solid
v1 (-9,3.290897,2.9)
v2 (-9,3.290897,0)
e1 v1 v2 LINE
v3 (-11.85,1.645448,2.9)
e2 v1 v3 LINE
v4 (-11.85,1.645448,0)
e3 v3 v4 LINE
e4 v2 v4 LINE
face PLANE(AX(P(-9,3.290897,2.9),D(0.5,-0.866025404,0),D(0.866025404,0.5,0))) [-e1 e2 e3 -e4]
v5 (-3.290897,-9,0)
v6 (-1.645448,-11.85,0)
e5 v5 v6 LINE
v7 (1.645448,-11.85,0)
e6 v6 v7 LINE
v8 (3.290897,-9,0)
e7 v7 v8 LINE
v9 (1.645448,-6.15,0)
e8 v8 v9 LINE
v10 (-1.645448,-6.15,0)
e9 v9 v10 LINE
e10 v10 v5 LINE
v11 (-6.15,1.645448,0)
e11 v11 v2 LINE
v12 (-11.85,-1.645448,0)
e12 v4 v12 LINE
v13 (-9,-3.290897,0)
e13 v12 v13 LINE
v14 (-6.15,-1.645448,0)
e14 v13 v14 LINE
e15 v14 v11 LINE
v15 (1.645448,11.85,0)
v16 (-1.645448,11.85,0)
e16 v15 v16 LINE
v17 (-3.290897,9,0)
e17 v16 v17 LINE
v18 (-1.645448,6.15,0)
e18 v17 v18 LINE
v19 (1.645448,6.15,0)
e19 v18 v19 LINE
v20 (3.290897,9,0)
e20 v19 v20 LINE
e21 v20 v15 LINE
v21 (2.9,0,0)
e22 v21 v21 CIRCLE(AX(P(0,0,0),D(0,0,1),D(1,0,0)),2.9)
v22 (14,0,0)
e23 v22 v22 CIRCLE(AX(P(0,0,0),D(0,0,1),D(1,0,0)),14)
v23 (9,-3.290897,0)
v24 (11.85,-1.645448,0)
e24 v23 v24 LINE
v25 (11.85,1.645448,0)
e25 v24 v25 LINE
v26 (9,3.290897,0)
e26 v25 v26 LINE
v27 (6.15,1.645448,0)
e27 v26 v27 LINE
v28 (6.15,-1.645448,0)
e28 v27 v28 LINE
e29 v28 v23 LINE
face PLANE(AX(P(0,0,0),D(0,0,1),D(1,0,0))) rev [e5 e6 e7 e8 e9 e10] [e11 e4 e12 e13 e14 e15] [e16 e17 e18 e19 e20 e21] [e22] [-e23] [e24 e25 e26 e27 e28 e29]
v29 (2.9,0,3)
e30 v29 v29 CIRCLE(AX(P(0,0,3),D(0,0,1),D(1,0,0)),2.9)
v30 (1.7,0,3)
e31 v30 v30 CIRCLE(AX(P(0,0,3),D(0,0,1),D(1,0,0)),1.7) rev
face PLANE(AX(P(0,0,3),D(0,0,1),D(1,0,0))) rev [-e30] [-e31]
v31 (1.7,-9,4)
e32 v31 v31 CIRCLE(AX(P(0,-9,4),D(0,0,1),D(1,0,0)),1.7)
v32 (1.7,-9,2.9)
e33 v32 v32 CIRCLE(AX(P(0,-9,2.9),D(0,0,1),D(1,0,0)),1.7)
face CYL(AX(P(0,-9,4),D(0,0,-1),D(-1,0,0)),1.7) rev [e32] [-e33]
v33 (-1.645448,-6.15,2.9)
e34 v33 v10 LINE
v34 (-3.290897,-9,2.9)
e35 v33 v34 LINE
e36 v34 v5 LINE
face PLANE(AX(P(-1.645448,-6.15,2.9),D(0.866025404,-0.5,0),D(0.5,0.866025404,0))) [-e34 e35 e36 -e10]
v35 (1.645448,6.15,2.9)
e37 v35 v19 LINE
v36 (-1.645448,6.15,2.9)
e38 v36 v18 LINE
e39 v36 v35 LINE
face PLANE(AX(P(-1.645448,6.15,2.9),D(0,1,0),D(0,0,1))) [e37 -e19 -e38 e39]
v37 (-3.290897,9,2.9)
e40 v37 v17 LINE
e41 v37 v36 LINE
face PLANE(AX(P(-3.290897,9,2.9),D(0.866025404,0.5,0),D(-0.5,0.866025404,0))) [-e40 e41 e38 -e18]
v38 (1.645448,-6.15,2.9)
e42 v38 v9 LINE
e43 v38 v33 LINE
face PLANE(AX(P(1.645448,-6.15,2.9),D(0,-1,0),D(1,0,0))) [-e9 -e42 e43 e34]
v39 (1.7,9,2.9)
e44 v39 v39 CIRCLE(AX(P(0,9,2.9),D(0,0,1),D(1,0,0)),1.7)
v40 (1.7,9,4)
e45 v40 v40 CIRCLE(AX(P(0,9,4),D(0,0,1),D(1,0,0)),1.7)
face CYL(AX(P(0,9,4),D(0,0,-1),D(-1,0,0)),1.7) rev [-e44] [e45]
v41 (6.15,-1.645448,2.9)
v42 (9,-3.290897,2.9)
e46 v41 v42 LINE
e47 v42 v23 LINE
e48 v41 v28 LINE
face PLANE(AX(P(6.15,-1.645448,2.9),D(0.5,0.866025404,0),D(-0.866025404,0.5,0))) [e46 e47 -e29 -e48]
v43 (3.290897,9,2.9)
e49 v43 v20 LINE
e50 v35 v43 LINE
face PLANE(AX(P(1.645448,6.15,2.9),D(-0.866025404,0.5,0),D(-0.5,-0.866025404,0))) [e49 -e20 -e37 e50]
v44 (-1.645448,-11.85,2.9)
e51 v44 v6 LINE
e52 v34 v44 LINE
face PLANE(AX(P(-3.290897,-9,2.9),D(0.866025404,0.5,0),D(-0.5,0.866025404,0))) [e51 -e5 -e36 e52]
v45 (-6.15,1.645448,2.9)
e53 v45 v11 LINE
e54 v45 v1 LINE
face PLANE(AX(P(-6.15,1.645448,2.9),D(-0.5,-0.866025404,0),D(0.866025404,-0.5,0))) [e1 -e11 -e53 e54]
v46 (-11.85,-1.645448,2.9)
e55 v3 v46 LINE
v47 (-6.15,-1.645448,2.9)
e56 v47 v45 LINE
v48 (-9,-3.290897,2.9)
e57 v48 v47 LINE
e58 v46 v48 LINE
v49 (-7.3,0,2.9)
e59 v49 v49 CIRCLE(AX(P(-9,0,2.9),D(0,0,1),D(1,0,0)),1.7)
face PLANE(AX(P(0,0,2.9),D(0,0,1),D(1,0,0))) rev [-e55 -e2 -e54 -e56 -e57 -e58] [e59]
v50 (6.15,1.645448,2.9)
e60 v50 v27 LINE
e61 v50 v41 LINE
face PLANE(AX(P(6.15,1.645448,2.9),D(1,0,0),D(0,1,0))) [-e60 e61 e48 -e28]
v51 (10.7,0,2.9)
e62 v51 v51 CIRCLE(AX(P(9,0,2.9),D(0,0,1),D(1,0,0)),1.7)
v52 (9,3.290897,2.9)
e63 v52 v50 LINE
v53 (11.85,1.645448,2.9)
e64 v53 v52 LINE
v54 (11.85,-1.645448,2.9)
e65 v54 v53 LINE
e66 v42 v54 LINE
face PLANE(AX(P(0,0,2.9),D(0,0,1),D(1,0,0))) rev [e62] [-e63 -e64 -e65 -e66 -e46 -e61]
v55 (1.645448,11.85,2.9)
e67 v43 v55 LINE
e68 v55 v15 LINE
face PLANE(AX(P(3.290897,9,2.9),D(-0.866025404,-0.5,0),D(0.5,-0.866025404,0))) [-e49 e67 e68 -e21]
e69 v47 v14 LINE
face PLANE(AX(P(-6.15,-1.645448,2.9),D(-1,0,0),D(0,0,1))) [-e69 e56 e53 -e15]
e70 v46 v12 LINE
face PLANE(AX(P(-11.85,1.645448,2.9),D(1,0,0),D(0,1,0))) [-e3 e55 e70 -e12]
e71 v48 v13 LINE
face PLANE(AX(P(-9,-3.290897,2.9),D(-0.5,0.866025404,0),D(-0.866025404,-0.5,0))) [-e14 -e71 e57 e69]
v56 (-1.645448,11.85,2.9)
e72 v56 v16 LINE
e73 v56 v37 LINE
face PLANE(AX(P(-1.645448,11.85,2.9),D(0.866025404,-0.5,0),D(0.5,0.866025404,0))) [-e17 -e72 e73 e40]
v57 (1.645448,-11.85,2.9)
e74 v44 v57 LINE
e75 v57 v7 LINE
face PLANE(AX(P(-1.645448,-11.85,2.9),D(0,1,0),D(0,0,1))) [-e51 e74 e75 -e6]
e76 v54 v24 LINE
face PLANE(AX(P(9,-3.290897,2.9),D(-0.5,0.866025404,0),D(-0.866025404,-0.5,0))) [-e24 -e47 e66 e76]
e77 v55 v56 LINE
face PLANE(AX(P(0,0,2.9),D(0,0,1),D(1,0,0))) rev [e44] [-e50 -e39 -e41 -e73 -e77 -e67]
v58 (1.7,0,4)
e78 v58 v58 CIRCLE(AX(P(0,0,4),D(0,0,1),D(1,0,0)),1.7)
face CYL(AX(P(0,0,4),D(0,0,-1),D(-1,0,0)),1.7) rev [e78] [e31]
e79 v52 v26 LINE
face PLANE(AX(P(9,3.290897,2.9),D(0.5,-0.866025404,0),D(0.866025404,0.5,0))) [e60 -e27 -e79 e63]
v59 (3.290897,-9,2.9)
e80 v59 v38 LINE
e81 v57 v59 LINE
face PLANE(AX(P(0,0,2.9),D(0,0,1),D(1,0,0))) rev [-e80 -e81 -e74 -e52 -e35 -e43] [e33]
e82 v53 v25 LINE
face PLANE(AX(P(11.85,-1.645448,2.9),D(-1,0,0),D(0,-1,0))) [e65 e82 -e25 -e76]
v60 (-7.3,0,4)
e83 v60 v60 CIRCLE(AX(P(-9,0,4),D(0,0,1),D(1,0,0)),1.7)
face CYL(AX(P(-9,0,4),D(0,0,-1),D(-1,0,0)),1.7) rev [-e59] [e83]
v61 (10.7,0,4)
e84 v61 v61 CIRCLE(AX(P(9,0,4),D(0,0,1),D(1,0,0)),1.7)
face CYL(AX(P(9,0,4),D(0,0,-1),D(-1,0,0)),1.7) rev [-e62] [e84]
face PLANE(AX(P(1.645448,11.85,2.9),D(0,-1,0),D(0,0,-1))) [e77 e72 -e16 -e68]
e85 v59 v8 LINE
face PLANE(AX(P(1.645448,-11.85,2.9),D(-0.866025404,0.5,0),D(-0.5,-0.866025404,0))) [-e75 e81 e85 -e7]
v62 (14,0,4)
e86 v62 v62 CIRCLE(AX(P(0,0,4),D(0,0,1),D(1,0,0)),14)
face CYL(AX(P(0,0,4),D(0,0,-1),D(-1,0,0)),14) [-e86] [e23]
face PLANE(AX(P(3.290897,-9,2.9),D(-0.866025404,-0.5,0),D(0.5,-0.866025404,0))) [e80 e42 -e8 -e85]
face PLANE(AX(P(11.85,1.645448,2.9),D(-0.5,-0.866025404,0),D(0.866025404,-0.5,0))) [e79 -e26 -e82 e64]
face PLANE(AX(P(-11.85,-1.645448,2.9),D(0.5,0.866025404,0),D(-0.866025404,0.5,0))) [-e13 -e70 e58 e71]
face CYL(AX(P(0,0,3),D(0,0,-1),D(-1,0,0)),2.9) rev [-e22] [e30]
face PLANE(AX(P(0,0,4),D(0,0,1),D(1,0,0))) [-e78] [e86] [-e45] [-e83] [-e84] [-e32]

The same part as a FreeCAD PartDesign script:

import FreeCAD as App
import Part
import Sketcher

V = App.Vector
Q = App.Units.Quantity


def add_polygon(sketch, points):
    """Adds a closed chain of lines whose ends are joined by coincident constraints."""
    first, n = sketch.GeometryCount, len(points)
    for a, b in zip(points, points[1:] + points[:1]):
        sketch.addGeometry(Part.LineSegment(App.Vector(*a, 0), App.Vector(*b, 0)), False)
    for i in range(n):
        sketch.addConstraint(Sketcher.Constraint("Coincident", first + i, 2, first + (i + 1) % n, 1))

doc = App.newDocument("Part")
body = doc.addObject("PartDesign::Body", "Body")

# Sketch on XY plane
sketch1 = body.newObject("Sketcher::SketchObject", "Sketch")
sketch1.AttachmentSupport = (doc.getObject("XY_Plane"), [""])
sketch1.MapMode = "FlatFace"
sketch1.addGeometry(Part.Circle(V(0, 0, 0), V(0, 0, 1), 14), False)
sketch1.addConstraint([
    Sketcher.Constraint("Coincident", 0, 3, -1, 1),
    Sketcher.Constraint("Diameter", 0, Q("28 mm")),
])
pad1 = body.newObject("PartDesign::Pad", "Pad")
pad1.Profile = sketch1
pad1.Length = 4

# Sketch on XY plane
sketch2 = body.newObject("Sketcher::SketchObject", "Sketch001")
sketch2.AttachmentSupport = (doc.getObject("XY_Plane"), [""])
sketch2.MapMode = "FlatFace"
sketch2.addGeometry(Part.Circle(V(0, 0, 0), V(0, 0, 1), 2.9), False)
sketch2.addConstraint([
    Sketcher.Constraint("Coincident", 0, 3, -1, 1),
    Sketcher.Constraint("Diameter", 0, Q("5.8 mm")),
])
pocket1 = body.newObject("PartDesign::Pocket", "Pocket")
pocket1.Profile = sketch2
pocket1.Length = 3
pocket1.Reversed = True

# Sketch on XY plane
sketch3 = body.newObject("Sketcher::SketchObject", "Sketch002")
sketch3.AttachmentSupport = (doc.getObject("XY_Plane"), [""])
sketch3.MapMode = "FlatFace"
sketch3.AttachmentOffset = App.Placement(V(0, 0, -50), App.Rotation())
sketch3.addGeometry(Part.Circle(V(0, 0, 0), V(0, 0, 1), 1.7), False)
sketch3.addConstraint([
    Sketcher.Constraint("Coincident", 0, 3, -1, 1),
    Sketcher.Constraint("Diameter", 0, Q("3.4 mm")),
])
pocket2 = body.newObject("PartDesign::Pocket", "Pocket001")
pocket2.Profile = sketch3
pocket2.Type = "ThroughAll"
pocket2.Reversed = True

# Sketch on XY plane
sketch4 = body.newObject("Sketcher::SketchObject", "Sketch003")
sketch4.AttachmentSupport = (doc.getObject("XY_Plane"), [""])
sketch4.MapMode = "FlatFace"
sketch4.AttachmentOffset = App.Placement(V(0, 0, -50), App.Rotation())
sketch4.addGeometry([
    Part.Circle(V(9, 0, 0), V(0, 0, 1), 1.7),
    Part.Circle(V(0, 9, 0), V(0, 0, 1), 1.7),
    Part.Circle(V(-9, 0, 0), V(0, 0, 1), 1.7),
    Part.Circle(V(0, -9, 0), V(0, 0, 1), 1.7),
], False)
sketch4.addConstraint([
    Sketcher.Constraint("Equal", 0, 1),
    Sketcher.Constraint("Equal", 1, 2),
    Sketcher.Constraint("Equal", 2, 3),
    Sketcher.Constraint("Symmetric", 0, 3, 2, 3, -1, 1),
    Sketcher.Constraint("Symmetric", 1, 3, 3, 3, -1, 1),
    Sketcher.Constraint("PointOnObject", 0, 3, -1),
    Sketcher.Constraint("PointOnObject", 1, 3, -2),
    Sketcher.Constraint("Diameter", 0, Q("3.4 mm")),
    Sketcher.Constraint("DistanceX", -1, 1, 0, 3, Q("9 mm")),
    Sketcher.Constraint("DistanceY", -1, 1, 1, 3, Q("9 mm")),
])
pocket3 = body.newObject("PartDesign::Pocket", "Pocket002")
pocket3.Profile = sketch4
pocket3.Type = "ThroughAll"
pocket3.Reversed = True

# Sketch on XY plane
sketch5 = body.newObject("Sketcher::SketchObject", "Sketch004")
sketch5.AttachmentSupport = (doc.getObject("XY_Plane"), [""])
sketch5.MapMode = "FlatFace"
add_polygon(sketch5, [(11.8, 1.6), (9, 3.3), (6.2, 1.6), (6.2, -1.6), (9, -3.3), (11.8, -1.6)])  # lines 0-5
add_polygon(sketch5, [(-1.6, 11.8), (-3.3, 9), (-1.6, 6.2), (1.6, 6.2), (3.3, 9), (1.6, 11.8)])  # lines 6-11
add_polygon(sketch5, [(-11.8, -1.6), (-9, -3.3), (-6.2, -1.6), (-6.2, 1.6), (-9, 3.3), (-11.8, 1.6)])  # lines 12-17
add_polygon(sketch5, [(1.6, -11.8), (3.3, -9), (1.6, -6.2), (-1.6, -6.2), (-3.3, -9), (-1.6, -11.8)])  # lines 18-23
sketch5.addConstraint([
    Sketcher.Constraint("Vertical", 2),
    Sketcher.Constraint("Vertical", 5),
    Sketcher.Constraint("Horizontal", 8),
    Sketcher.Constraint("Horizontal", 11),
    Sketcher.Constraint("Vertical", 14),
    Sketcher.Constraint("Vertical", 17),
    Sketcher.Constraint("Horizontal", 20),
    Sketcher.Constraint("Horizontal", 23),
    Sketcher.Constraint("Symmetric", 0, 2, 12, 2, -1, 1),
    Sketcher.Constraint("Symmetric", 1, 2, 13, 2, -1, 1),
    Sketcher.Constraint("Symmetric", 3, 2, 15, 2, -1, 1),
    Sketcher.Constraint("Symmetric", 4, 2, 16, 2, -1, 1),
    Sketcher.Constraint("Symmetric", 6, 2, 18, 2, -1, 1),
    Sketcher.Constraint("Symmetric", 7, 2, 19, 2, -1, 1),
    Sketcher.Constraint("Symmetric", 9, 2, 21, 2, -1, 1),
    Sketcher.Constraint("Symmetric", 10, 2, 22, 2, -1, 1),
    Sketcher.Constraint("Symmetric", 6, 2, 9, 2, -2),
    Sketcher.Constraint("Symmetric", 3, 2, 12, 2, -2),
    Sketcher.Constraint("Parallel", 0, 3),
    Sketcher.Constraint("Parallel", 1, 4),
    Sketcher.Constraint("Perpendicular", 3, 6),
    Sketcher.Constraint("Perpendicular", 4, 7),
    Sketcher.Constraint("Parallel", 6, 9),
    Sketcher.Constraint("Parallel", 7, 10),
    Sketcher.Constraint("Perpendicular", 9, 12),
    Sketcher.Constraint("Parallel", 12, 15),
    Sketcher.Constraint("Perpendicular", 15, 18),
    Sketcher.Constraint("Parallel", 18, 21),
    Sketcher.Constraint("Horizontal", 2, 2, 4, 2),
    Sketcher.Constraint("Horizontal", 1, 2, 5, 2),
    Sketcher.Constraint("Vertical", 8, 2, 10, 2),
    Sketcher.Constraint("Equal", 23, 2),
    Sketcher.Constraint("Equal", 4, 6),
    Sketcher.Constraint("Angle", 0, Q("150 deg")),
    Sketcher.Constraint("DistanceX", -1, 1, 0, 2, Q("9 mm")),
    Sketcher.Constraint("DistanceY", -1, 1, 6, 2, Q("9 mm")),
    Sketcher.Constraint("DistanceX", 2, 2, 4, 2, Q("5.7 mm")),
    Sketcher.Constraint("DistanceX", 8, 1, 8, 2, Q("3.290897 mm")),
])
pocket4 = body.newObject("PartDesign::Pocket", "Pocket003")
pocket4.Profile = sketch5
pocket4.Length = 2.9
pocket4.Reversed = True

doc.recompute()
